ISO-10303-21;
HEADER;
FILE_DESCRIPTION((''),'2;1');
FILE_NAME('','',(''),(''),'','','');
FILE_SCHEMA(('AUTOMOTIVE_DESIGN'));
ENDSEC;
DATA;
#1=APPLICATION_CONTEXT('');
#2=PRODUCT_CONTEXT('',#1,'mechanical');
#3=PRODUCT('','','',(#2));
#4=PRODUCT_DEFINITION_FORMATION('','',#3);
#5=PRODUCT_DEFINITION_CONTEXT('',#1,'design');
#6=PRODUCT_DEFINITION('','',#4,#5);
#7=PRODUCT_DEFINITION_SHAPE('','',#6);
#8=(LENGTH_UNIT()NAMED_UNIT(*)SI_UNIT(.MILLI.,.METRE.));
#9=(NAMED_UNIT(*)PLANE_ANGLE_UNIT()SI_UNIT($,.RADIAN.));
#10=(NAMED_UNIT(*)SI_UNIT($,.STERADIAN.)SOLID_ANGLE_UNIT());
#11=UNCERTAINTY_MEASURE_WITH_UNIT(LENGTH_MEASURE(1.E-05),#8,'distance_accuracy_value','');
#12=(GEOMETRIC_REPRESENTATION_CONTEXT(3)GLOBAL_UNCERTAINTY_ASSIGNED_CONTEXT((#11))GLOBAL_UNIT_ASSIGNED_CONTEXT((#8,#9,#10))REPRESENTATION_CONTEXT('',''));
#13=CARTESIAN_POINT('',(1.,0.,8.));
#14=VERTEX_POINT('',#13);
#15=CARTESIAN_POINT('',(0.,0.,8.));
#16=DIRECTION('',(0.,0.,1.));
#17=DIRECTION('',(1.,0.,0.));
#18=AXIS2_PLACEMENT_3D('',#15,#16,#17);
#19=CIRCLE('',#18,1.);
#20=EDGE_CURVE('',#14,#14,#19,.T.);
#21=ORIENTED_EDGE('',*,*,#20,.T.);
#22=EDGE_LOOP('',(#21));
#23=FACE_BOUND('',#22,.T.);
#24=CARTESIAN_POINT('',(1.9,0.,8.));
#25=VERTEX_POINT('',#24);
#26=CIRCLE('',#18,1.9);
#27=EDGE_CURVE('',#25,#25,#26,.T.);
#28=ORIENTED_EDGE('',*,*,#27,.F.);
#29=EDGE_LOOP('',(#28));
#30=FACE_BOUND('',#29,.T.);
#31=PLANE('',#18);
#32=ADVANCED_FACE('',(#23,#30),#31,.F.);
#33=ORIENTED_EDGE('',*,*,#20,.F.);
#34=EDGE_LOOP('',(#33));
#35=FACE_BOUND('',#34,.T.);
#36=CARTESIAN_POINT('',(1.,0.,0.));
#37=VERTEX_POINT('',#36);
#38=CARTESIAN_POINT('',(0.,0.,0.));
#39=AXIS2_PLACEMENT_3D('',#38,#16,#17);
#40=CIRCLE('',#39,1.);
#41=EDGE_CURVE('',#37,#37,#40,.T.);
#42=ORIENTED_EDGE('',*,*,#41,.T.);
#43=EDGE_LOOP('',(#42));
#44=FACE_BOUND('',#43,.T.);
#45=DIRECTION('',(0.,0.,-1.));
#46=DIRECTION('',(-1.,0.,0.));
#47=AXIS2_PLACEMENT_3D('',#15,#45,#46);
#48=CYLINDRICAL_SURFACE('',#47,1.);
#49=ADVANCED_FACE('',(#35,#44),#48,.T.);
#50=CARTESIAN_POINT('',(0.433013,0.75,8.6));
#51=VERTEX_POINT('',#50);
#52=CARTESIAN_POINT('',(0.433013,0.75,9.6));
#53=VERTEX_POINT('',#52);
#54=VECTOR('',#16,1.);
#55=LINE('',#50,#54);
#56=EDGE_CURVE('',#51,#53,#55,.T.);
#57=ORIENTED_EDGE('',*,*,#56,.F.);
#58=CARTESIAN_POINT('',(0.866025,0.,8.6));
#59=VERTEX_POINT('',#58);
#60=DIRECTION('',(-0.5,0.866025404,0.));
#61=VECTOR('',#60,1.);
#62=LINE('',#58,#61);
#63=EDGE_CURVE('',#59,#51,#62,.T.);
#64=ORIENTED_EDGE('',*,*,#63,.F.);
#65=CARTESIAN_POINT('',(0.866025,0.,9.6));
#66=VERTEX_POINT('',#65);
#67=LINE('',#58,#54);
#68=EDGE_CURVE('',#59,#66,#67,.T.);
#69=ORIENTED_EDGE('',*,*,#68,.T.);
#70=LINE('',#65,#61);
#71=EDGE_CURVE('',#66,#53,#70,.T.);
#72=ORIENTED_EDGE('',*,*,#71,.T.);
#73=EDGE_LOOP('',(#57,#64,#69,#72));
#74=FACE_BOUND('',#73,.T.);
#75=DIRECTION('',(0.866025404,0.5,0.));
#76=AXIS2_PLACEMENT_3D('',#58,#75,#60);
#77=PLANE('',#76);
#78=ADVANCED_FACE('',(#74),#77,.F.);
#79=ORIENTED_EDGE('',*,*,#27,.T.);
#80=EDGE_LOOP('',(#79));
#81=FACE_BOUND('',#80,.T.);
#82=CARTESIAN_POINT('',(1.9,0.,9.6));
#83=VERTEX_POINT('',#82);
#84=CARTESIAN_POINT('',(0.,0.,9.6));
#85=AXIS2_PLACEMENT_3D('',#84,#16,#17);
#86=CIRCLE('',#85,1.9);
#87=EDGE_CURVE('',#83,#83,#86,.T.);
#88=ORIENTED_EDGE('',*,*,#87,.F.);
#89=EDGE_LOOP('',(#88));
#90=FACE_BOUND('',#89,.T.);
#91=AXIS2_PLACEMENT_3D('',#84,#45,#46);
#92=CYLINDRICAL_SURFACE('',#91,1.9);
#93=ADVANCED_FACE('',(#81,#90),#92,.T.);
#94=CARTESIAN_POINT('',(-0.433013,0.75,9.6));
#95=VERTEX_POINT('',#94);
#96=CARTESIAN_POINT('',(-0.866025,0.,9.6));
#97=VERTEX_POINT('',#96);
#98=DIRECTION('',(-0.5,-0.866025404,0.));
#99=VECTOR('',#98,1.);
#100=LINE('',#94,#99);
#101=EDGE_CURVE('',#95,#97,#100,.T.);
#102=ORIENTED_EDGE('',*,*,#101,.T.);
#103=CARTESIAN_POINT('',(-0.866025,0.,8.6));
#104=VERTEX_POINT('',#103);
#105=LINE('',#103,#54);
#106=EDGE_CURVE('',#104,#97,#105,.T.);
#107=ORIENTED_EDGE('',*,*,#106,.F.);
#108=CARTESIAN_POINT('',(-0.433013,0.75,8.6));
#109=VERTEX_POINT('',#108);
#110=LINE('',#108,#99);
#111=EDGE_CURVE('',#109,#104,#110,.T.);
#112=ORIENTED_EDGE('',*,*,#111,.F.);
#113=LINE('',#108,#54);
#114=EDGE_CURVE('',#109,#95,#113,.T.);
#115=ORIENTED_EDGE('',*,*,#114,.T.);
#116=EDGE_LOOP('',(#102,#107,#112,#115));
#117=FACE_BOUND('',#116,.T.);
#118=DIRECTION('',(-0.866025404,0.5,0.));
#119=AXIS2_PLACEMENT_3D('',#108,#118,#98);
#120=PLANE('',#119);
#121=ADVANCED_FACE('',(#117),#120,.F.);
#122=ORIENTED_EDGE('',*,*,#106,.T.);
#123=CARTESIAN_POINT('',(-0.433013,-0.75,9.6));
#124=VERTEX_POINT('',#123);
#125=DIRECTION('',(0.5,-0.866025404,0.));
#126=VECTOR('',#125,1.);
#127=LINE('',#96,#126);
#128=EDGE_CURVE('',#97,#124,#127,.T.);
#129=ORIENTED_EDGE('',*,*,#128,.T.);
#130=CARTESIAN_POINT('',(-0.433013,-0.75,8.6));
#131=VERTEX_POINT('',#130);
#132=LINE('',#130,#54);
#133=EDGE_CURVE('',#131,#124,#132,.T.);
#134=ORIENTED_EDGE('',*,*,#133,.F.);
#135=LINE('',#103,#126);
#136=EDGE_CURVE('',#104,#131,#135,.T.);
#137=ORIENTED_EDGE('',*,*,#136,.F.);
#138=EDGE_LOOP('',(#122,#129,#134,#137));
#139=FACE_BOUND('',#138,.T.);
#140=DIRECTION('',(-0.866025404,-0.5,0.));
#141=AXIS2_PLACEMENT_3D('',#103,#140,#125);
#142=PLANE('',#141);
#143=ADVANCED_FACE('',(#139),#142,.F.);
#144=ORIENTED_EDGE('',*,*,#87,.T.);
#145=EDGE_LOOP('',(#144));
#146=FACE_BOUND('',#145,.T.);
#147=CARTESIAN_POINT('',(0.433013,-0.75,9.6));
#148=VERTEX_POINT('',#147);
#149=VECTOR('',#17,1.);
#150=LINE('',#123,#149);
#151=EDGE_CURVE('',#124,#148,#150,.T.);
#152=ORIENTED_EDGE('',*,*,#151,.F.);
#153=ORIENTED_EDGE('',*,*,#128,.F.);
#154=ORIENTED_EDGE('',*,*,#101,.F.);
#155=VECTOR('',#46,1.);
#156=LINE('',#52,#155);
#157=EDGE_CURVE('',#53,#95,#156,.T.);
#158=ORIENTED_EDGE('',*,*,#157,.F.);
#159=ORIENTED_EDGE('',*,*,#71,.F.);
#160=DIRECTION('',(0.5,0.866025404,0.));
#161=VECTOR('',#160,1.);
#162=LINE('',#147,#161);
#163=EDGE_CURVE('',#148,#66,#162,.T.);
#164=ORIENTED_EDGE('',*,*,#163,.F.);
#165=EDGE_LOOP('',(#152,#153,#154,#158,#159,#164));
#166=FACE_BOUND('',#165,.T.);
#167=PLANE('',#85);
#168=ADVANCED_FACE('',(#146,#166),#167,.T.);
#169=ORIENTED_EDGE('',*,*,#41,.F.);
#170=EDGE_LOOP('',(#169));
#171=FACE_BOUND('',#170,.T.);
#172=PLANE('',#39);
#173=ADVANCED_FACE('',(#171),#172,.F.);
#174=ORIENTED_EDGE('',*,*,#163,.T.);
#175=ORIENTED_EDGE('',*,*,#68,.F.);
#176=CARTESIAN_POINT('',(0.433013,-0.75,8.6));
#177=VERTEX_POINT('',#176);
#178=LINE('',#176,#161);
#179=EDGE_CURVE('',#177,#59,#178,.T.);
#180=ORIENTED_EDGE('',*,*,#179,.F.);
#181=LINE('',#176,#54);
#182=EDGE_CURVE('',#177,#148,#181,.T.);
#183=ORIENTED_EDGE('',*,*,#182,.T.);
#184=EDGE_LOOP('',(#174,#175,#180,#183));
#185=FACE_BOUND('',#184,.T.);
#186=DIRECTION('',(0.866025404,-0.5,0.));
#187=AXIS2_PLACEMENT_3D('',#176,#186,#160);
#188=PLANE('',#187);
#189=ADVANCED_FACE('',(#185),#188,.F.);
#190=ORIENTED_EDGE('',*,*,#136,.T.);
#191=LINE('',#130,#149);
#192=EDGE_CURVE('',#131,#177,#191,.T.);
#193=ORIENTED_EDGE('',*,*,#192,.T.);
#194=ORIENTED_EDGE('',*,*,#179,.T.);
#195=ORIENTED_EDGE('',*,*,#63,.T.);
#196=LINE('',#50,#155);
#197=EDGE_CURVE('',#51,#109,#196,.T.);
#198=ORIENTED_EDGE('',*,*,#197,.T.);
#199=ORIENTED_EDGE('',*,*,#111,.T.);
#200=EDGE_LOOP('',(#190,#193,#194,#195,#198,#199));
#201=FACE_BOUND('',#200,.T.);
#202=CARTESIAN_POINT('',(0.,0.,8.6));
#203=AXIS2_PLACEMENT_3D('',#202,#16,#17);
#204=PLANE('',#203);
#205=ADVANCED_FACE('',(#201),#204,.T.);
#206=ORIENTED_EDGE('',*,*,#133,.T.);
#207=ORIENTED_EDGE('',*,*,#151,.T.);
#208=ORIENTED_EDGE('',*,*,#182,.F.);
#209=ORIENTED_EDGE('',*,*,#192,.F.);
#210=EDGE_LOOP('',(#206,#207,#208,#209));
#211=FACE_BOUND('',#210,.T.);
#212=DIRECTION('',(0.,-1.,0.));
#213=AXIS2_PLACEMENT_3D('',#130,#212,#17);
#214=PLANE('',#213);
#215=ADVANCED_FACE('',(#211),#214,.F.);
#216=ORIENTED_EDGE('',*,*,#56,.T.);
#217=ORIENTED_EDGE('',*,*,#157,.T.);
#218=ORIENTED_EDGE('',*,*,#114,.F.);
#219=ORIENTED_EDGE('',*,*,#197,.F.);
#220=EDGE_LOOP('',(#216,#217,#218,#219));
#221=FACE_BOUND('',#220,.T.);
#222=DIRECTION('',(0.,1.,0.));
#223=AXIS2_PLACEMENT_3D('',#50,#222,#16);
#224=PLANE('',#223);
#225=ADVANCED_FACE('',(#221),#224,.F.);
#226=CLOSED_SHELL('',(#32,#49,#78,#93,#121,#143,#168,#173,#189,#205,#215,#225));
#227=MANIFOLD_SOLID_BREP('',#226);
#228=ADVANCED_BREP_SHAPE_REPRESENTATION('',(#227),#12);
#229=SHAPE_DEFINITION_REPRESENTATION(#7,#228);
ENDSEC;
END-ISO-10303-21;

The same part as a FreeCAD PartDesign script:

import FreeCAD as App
import Part
import Sketcher
Q = App.Units.Quantity

doc = App.newDocument("Part")
body = doc.addObject("PartDesign::Body", "Body")

# Sketch on XY plane
sketch1 = body.newObject("Sketcher::SketchObject", "Sketch")
sketch1.AttachmentSupport = (doc.getObject("XY_Plane"), [""])
sketch1.MapMode = "FlatFace"
sketch1.addGeometry(Part.Circle(App.Vector(0, 0, 0), App.Vector(0, 0, 1), 1), False)
sketch1.addConstraint(Sketcher.Constraint("Coincident", 0, 3, -1, 1))
sketch1.addConstraint(Sketcher.Constraint("Diameter", 0, 2.0))
pad1 = body.newObject("PartDesign::Pad", "Pad")
pad1.Profile = sketch1
pad1.Length = 8

# Sketch on XY plane
sketch2 = body.newObject("Sketcher::SketchObject", "Sketch001")
sketch2.AttachmentSupport = (doc.getObject("XY_Plane"), [""])
sketch2.MapMode = "FlatFace"
sketch2.AttachmentOffset = App.Placement(App.Vector(0, 0, 8), App.Rotation())
sketch2.addGeometry(Part.Circle(App.Vector(0, 0, 0), App.Vector(0, 0, 1), 1.9), False)
sketch2.addConstraint(Sketcher.Constraint("Coincident", 0, 3, -1, 1))
sketch2.addConstraint(Sketcher.Constraint("Diameter", 0, 3.8))
pad2 = body.newObject("PartDesign::Pad", "Pad001")
pad2.Profile = sketch2
pad2.Length = 1.6

# Sketch on XY plane
sketch3 = body.newObject("Sketcher::SketchObject", "Sketch002")
sketch3.AttachmentSupport = (doc.getObject("XY_Plane"), [""])
sketch3.MapMode = "FlatFace"
sketch3.AttachmentOffset = App.Placement(App.Vector(0, 0, 9.6), App.Rotation())
sketch3.addGeometry(Part.LineSegment(App.Vector(0.866025, 0, 0), App.Vector(0.433013, 0.75, 0)), False)
sketch3.addGeometry(Part.LineSegment(App.Vector(0.433013, 0.75, 0), App.Vector(-0.433013, 0.75, 0)), False)
sketch3.addGeometry(Part.LineSegment(App.Vector(-0.433013, 0.75, 0), App.Vector(-0.866025, 0, 0)), False)
sketch3.addGeometry(Part.LineSegment(App.Vector(-0.866025, 0, 0), App.Vector(-0.433013, -0.75, 0)), False)
sketch3.addGeometry(Part.LineSegment(App.Vector(-0.433013, -0.75, 0), App.Vector(0.433013, -0.75, 0)), False)
sketch3.addGeometry(Part.LineSegment(App.Vector(0.433013, -0.75, 0), App.Vector(0.866025, 0, 0)), False)
sketch3.addConstraint(Sketcher.Constraint("Coincident", 0, 2, 1, 1))
sketch3.addConstraint(Sketcher.Constraint("Coincident", 1, 2, 2, 1))
sketch3.addConstraint(Sketcher.Constraint("Coincident", 2, 2, 3, 1))
sketch3.addConstraint(Sketcher.Constraint("Coincident", 3, 2, 4, 1))
sketch3.addConstraint(Sketcher.Constraint("Coincident", 4, 2, 5, 1))
sketch3.addConstraint(Sketcher.Constraint("Coincident", 5, 2, 0, 1))
sketch3.addConstraint(Sketcher.Constraint("Horizontal", 1))
sketch3.addConstraint(Sketcher.Constraint("Horizontal", 4))
sketch3.addConstraint(Sketcher.Constraint("Symmetric", 0, 2, 3, 2, -1, 1))
sketch3.addConstraint(Sketcher.Constraint("Symmetric", 2, 2, 5, 2, -1, 1))
sketch3.addConstraint(Sketcher.Constraint("PointOnObject", 2, 2, -1))
sketch3.addConstraint(Sketcher.Constraint("Parallel", 2, 5))
sketch3.addConstraint(Sketcher.Constraint("Vertical", 1, 2, 3, 2))
sketch3.addConstraint(Sketcher.Constraint("Angle", 0, Q("120 deg")))
sketch3.addConstraint(Sketcher.Constraint("DistanceY", 3, 2, 1, 2, 1.5))
sketch3.addConstraint(Sketcher.Constraint("DistanceX", 1, 2, 1, 1, 0.866025))
pocket1 = body.newObject("PartDesign::Pocket", "Pocket")
pocket1.Profile = sketch3
pocket1.Length = 1

doc.recompute()
